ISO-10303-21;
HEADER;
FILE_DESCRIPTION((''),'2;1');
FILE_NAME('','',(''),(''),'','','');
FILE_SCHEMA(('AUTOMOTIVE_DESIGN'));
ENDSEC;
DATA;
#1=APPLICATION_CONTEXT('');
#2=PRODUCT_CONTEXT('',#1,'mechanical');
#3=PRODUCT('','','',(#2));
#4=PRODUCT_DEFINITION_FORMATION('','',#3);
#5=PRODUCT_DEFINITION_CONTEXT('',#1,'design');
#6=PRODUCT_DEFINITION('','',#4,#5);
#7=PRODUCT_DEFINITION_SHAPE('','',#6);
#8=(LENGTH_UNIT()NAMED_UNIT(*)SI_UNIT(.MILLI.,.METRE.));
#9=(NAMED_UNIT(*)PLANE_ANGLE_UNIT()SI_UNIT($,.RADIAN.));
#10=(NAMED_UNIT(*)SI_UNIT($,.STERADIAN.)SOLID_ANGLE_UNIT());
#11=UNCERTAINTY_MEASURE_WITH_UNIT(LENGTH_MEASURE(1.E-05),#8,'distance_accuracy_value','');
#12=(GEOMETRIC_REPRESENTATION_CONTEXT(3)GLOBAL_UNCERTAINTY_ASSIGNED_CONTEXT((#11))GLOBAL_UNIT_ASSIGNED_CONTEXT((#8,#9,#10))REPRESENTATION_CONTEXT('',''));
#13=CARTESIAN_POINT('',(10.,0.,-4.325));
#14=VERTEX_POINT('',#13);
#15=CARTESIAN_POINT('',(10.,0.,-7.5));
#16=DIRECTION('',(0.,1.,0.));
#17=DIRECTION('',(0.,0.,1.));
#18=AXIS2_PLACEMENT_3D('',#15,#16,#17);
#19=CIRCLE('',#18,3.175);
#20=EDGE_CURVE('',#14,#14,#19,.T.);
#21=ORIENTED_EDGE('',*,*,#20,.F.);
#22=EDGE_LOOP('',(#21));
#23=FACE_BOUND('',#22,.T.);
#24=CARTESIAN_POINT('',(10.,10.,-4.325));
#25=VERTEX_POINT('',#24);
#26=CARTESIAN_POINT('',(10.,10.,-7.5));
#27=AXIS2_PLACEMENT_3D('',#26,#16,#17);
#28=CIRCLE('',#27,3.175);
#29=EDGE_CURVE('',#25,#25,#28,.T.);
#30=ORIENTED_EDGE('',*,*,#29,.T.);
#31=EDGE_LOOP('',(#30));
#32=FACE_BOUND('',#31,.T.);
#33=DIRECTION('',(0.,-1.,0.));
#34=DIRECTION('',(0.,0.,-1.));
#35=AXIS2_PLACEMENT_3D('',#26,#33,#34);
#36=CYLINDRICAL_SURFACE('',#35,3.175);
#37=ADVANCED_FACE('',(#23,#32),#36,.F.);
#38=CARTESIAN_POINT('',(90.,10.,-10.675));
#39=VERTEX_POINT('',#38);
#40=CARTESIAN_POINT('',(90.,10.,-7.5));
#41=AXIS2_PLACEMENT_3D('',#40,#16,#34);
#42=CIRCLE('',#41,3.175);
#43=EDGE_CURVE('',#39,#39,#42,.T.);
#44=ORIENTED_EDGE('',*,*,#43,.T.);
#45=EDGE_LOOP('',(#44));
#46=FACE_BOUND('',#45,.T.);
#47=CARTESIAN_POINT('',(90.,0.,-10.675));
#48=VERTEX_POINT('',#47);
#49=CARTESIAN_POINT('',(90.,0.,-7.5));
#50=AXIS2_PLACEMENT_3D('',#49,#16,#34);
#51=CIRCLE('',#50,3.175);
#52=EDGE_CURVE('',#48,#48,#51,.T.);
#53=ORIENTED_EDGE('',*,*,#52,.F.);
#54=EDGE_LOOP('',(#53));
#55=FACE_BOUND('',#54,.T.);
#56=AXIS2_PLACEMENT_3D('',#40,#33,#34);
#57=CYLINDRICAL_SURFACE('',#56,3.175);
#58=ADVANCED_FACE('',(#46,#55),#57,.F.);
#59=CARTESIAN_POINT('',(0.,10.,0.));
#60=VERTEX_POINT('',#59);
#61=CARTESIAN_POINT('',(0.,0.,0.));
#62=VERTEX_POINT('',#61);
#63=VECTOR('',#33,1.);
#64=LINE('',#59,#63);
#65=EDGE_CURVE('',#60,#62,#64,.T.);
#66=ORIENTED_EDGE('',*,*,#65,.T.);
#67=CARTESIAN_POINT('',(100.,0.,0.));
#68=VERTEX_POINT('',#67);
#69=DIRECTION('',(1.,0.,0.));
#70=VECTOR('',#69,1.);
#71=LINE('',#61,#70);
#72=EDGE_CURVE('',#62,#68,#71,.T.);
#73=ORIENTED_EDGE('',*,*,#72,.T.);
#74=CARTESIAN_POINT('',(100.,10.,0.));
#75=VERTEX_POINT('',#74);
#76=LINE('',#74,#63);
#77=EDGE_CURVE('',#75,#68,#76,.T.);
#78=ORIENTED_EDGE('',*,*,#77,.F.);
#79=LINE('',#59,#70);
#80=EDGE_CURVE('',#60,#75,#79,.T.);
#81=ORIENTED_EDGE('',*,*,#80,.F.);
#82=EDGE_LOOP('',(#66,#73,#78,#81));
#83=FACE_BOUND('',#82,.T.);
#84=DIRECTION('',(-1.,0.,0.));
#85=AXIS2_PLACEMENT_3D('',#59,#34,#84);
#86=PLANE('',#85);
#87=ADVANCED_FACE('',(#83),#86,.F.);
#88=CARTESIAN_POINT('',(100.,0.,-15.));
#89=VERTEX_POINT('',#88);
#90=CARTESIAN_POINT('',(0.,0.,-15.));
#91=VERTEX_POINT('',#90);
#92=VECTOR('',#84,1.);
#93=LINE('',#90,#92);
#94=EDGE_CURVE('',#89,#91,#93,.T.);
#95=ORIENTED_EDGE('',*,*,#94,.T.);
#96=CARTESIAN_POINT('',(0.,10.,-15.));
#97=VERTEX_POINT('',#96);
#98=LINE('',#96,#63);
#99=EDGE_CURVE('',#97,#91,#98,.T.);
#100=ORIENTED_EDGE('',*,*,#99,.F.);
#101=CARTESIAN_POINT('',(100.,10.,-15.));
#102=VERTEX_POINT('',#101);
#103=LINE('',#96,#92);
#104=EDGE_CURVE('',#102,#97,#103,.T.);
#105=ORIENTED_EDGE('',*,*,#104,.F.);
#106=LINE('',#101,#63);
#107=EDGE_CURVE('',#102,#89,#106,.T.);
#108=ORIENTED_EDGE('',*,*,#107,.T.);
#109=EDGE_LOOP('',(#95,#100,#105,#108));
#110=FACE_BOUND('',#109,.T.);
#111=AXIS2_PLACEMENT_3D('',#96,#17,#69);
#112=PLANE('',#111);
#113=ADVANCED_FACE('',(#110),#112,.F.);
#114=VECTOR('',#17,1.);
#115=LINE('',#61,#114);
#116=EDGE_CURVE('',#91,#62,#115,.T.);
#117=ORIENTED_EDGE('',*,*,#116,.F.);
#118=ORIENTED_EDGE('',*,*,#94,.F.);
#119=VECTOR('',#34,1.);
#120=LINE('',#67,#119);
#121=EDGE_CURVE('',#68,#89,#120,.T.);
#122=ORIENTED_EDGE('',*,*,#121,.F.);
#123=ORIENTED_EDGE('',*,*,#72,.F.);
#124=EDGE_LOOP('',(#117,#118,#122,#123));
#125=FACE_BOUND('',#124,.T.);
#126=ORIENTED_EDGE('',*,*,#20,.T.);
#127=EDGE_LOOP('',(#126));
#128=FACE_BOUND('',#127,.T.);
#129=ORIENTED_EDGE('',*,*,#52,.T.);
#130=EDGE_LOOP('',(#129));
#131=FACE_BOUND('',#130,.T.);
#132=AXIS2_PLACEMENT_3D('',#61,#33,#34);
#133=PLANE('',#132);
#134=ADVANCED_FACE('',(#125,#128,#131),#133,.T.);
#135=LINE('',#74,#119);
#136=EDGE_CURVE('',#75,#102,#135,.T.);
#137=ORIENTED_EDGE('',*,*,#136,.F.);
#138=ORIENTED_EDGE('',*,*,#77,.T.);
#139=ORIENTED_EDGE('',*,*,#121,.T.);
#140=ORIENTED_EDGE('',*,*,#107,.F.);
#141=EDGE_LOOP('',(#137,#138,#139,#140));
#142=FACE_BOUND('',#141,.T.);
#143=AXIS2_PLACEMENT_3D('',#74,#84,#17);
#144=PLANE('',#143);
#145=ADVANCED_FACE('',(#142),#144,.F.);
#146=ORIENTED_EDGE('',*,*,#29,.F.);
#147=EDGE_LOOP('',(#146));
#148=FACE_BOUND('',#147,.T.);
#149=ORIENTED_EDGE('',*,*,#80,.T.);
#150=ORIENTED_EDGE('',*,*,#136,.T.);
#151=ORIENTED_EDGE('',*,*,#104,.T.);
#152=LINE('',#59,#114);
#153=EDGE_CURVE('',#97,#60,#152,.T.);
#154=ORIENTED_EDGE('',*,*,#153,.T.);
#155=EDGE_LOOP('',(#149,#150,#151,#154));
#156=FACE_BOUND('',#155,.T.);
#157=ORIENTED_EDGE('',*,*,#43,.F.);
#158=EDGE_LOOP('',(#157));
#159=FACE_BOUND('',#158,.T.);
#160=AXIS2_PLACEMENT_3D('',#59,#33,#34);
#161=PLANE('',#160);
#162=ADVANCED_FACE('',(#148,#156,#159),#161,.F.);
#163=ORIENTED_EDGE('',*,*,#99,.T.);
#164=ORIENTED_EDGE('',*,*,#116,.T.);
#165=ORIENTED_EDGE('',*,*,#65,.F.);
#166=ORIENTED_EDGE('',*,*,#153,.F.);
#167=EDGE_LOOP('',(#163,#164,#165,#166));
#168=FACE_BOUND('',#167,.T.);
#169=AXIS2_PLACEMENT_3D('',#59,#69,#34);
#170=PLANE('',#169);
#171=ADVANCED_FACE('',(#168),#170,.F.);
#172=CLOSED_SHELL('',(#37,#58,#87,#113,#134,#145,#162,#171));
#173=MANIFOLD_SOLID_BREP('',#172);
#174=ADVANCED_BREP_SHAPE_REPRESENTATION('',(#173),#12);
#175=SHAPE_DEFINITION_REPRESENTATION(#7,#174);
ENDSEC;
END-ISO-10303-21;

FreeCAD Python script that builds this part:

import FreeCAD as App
import Part
import Sketcher

V = App.Vector


def add_polygon(sketch, points):
    """Adds a closed chain of lines whose ends are joined by coincident constraints."""
    first, n = sketch.GeometryCount, len(points)
    for a, b in zip(points, points[1:] + points[:1]):
        sketch.addGeometry(Part.LineSegment(App.Vector(*a, 0), App.Vector(*b, 0)), False)
    for i in range(n):
        sketch.addConstraint(Sketcher.Constraint("Coincident", first + i, 2, first + (i + 1) % n, 1))

doc = App.newDocument("Part")
body = doc.addObject("PartDesign::Body", "Body")

sketch1 = doc.addObject("Sketcher::SketchObject", "Sketch")
body.addObject(sketch1)
sketch1.AttachmentSupport = (doc.XZ_Plane, [""])
sketch1.MapMode = "FlatFace"
add_polygon(sketch1, [(0, -15), (0, 0), (100, 0), (100, -15)])
sketch1.addGeometry(Part.Circle(V(10, -7.5, 0), V(0, 0, 1), 3.2), False)
sketch1.addGeometry(Part.Circle(V(90, -7.5, 0), V(0, 0, 1), 3.2), False)
sketch1.addConstraint([
    Sketcher.Constraint("Vertical", 0),
    Sketcher.Constraint("Horizontal", 1),
    Sketcher.Constraint("Vertical", 2),
    Sketcher.Constraint("Horizontal", 3),
    Sketcher.Constraint("Coincident", 0, 2, -1, 1),
    Sketcher.Constraint("Equal", 4, 5),
    Sketcher.Constraint("Horizontal", 4, 3, 5, 3),
    Sketcher.Constraint("Diameter", 4, 6.35),
    Sketcher.Constraint("DistanceX", 1, 1, 1, 2, 100.0),
    Sketcher.Constraint("DistanceY", 0, 1, 0, 2, 15.0),
    Sketcher.Constraint("DistanceX", -1, 1, 4, 3, 10.0),
    Sketcher.Constraint("DistanceX", -1, 1, 5, 3, 90.0),
    Sketcher.Constraint("DistanceY", 4, 3, -1, 1, 7.5),
])
pad1 = doc.addObject("PartDesign::Pad", "Pad")
body.addObject(pad1)
pad1.Profile = sketch1
pad1.Length = 10
pad1.Reversed = True

doc.recompute()
